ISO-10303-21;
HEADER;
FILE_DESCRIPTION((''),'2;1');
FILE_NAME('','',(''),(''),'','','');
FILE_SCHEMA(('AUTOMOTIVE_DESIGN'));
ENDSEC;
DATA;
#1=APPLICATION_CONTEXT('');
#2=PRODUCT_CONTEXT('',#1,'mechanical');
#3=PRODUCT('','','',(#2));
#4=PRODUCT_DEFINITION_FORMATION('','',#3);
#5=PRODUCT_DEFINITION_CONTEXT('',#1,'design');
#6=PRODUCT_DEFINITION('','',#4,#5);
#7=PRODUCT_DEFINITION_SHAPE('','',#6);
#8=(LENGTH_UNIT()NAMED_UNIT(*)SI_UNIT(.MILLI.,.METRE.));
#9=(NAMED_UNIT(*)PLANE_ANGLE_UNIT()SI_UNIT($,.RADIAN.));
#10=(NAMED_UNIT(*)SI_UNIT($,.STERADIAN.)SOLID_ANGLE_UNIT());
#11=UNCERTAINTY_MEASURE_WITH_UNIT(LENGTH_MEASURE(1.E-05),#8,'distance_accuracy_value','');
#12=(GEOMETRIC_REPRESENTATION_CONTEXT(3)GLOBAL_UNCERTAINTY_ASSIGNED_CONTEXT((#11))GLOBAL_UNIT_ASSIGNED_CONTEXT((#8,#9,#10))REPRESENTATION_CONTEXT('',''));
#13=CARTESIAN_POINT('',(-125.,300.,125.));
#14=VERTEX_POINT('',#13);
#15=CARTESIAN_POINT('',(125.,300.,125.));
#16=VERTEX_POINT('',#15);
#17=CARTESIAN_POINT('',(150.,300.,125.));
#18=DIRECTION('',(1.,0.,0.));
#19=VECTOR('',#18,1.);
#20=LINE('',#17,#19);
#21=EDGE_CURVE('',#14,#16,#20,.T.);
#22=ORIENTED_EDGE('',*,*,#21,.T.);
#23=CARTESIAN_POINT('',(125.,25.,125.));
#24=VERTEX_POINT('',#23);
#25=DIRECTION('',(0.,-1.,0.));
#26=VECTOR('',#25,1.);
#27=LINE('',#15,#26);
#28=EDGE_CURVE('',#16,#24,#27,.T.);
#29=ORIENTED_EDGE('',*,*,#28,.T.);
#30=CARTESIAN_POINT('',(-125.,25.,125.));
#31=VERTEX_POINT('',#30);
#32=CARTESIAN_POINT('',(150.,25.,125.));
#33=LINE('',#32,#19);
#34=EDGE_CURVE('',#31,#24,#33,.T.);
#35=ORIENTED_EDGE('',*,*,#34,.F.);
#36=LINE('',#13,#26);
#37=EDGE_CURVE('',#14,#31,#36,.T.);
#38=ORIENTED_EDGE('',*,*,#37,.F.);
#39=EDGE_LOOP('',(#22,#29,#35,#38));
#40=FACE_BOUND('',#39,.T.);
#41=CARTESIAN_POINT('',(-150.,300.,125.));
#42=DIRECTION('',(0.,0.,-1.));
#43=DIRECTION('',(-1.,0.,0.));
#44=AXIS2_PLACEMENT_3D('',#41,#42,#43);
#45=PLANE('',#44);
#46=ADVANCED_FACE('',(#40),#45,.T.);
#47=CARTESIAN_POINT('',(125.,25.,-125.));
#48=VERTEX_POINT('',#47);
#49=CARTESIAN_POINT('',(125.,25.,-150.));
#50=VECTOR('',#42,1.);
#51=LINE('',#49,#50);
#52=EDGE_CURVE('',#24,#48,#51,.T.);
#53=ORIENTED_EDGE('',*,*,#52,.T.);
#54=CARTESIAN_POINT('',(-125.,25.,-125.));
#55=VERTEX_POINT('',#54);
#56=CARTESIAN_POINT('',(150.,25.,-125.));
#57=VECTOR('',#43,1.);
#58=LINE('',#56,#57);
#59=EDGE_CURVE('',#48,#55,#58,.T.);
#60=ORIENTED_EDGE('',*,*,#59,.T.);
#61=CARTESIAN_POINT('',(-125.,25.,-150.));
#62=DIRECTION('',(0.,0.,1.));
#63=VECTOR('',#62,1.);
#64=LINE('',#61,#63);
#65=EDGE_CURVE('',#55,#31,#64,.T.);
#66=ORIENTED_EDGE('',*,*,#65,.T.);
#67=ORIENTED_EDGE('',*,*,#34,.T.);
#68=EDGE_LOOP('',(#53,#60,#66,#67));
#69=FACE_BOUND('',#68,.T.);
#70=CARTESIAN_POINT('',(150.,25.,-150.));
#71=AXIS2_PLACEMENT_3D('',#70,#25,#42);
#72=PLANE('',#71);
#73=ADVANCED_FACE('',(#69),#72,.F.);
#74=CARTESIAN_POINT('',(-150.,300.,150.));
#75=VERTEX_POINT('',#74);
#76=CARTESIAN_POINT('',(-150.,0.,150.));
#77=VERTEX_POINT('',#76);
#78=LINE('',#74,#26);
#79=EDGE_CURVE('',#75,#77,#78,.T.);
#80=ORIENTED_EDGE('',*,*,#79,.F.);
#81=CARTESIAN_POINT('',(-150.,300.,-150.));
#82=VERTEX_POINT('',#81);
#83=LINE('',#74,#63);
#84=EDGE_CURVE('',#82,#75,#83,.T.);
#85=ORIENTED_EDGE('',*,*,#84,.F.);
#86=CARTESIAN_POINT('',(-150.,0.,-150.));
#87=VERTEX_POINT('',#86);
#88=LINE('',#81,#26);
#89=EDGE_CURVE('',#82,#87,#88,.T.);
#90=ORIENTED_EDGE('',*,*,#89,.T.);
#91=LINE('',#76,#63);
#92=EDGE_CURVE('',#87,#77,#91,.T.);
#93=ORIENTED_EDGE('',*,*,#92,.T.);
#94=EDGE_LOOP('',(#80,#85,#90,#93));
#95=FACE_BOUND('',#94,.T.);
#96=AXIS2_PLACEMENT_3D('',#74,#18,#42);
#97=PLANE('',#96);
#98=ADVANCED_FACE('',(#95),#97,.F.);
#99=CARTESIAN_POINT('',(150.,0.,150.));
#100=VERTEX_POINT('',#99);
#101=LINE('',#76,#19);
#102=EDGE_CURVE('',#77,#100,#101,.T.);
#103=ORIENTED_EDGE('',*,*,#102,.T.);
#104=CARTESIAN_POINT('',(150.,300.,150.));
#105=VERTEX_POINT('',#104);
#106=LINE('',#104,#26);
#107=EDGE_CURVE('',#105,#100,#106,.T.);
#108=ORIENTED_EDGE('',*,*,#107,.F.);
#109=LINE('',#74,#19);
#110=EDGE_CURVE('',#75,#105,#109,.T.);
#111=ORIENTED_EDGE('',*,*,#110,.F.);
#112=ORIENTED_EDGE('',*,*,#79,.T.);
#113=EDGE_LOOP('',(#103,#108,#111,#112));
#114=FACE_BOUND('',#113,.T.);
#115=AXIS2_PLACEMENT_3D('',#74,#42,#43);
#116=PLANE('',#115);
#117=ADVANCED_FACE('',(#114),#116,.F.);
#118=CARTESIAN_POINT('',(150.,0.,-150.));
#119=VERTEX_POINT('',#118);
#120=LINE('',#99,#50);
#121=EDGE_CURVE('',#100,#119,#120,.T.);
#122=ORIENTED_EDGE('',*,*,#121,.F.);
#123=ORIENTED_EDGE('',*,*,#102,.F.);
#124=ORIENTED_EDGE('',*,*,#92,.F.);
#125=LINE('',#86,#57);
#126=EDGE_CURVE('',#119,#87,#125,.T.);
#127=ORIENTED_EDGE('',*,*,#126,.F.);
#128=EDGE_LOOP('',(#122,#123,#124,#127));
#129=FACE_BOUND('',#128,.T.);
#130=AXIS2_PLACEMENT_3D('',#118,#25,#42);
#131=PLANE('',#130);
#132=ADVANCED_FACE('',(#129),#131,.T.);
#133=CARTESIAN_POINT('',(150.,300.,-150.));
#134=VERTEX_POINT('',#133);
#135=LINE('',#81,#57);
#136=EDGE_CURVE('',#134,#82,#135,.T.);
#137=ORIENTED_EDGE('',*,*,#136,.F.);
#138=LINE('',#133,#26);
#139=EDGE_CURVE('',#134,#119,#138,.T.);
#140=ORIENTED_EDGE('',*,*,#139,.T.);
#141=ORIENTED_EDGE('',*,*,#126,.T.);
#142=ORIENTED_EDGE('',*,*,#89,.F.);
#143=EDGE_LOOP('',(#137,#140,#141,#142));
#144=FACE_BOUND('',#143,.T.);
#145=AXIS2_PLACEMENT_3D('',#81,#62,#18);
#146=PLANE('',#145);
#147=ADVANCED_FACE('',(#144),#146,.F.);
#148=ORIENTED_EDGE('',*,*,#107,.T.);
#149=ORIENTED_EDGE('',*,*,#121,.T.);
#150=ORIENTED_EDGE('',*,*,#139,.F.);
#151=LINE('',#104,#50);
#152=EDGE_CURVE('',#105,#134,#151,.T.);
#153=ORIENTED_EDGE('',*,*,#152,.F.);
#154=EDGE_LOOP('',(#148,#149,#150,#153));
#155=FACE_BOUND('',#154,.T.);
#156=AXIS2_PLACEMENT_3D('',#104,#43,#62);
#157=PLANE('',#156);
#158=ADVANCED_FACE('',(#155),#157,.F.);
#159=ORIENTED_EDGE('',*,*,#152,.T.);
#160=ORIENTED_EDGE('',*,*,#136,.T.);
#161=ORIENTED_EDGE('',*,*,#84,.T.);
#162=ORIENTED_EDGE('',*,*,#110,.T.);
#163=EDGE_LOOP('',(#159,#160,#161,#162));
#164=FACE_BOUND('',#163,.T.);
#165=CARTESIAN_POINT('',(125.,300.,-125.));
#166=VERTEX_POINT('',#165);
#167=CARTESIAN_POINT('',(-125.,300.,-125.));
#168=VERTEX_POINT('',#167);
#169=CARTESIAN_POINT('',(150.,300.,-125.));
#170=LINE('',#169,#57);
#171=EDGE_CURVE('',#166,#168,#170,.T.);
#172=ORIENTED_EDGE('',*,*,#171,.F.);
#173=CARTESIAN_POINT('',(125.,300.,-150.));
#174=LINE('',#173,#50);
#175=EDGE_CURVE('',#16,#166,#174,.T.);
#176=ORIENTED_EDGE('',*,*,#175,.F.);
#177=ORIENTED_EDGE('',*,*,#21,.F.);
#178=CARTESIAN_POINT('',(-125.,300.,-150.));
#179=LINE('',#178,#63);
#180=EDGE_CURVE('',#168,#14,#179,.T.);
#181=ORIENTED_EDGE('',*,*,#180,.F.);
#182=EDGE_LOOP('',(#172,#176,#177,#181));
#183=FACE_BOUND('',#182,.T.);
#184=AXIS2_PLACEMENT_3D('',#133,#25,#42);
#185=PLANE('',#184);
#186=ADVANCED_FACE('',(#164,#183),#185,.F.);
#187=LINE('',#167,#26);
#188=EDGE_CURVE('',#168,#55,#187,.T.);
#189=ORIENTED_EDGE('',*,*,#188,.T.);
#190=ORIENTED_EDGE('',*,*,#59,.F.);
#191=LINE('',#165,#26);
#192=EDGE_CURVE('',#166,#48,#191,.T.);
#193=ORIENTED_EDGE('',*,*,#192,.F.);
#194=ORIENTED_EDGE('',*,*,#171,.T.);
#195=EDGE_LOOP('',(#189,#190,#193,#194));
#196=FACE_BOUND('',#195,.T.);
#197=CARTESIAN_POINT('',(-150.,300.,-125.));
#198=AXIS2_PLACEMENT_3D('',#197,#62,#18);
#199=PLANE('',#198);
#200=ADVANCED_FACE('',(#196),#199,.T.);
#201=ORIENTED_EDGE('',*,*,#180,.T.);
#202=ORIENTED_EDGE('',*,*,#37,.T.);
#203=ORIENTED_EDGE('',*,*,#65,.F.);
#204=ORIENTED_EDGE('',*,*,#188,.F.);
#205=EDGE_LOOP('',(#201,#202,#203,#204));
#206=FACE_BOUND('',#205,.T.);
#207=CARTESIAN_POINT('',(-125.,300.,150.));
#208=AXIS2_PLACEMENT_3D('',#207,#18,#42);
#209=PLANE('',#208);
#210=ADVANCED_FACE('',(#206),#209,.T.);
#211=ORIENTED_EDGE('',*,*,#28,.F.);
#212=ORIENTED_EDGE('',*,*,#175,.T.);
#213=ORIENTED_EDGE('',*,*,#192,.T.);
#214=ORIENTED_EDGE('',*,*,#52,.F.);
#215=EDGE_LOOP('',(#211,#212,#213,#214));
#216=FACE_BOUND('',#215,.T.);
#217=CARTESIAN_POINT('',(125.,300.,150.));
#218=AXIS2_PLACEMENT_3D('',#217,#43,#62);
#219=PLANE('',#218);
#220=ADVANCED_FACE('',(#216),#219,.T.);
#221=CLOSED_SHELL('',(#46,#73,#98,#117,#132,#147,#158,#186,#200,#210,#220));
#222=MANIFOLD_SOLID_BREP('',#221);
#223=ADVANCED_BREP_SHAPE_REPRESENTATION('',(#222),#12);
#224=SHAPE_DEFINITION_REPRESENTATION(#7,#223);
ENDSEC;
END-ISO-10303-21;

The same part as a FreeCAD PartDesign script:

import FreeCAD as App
import Part
import Sketcher
Q = App.Units.Quantity


def faces_at(feature, points):
    """Names of the faces that lie closest to the given points."""
    faces = feature.Shape.Faces
    near = lambda p: min(range(len(faces)), key=lambda i: faces[i].distToShape(Part.Vertex(*p))[0])
    return sorted({f"Face{near(p) + 1}" for p in points})

doc = App.newDocument("Part")
body = doc.addObject("PartDesign::Body", "Body")

# Sketch on XZ plane
sketch1 = body.newObject("Sketcher::SketchObject", "Sketch")
sketch1.AttachmentSupport = (doc.getObject("XZ_Plane"), [""])
sketch1.MapMode = "FlatFace"
sketch1.addGeometry(Part.LineSegment(App.Vector(-150, -150, 0), App.Vector(-150, 150, 0)), False)
sketch1.addGeometry(Part.LineSegment(App.Vector(-150, 150, 0), App.Vector(150, 150, 0)), False)
sketch1.addGeometry(Part.LineSegment(App.Vector(150, 150, 0), App.Vector(150, -150, 0)), False)
sketch1.addGeometry(Part.LineSegment(App.Vector(150, -150, 0), App.Vector(-150, -150, 0)), False)
sketch1.addConstraint(Sketcher.Constraint("Coincident", 0, 2, 1, 1))
sketch1.addConstraint(Sketcher.Constraint("Coincident", 1, 2, 2, 1))
sketch1.addConstraint(Sketcher.Constraint("Coincident", 2, 2, 3, 1))
sketch1.addConstraint(Sketcher.Constraint("Coincident", 3, 2, 0, 1))
sketch1.addConstraint(Sketcher.Constraint("Vertical", 0))
sketch1.addConstraint(Sketcher.Constraint("Horizontal", 1))
sketch1.addConstraint(Sketcher.Constraint("Vertical", 2))
sketch1.addConstraint(Sketcher.Constraint("Horizontal", 3))
sketch1.addConstraint(Sketcher.Constraint("Symmetric", 0, 2, 2, 2, -1, 1))
sketch1.addConstraint(Sketcher.Constraint("Equal", 3, 0))
sketch1.addConstraint(Sketcher.Constraint("DistanceX", 1, 1, 1, 2, Q("300 mm")))
pad1 = body.newObject("PartDesign::Pad", "Pad")
pad1.Profile = sketch1
pad1.Length = 300
pad1.Reversed = True
doc.recompute()

thickness = body.newObject("PartDesign::Thickness", "Thickness")
thickness.Base = (pad1, faces_at(pad1, [(0, 300, 0)]))
thickness.Value = 25
thickness.Reversed = True
thickness.Join = "Intersection"

doc.recompute()
